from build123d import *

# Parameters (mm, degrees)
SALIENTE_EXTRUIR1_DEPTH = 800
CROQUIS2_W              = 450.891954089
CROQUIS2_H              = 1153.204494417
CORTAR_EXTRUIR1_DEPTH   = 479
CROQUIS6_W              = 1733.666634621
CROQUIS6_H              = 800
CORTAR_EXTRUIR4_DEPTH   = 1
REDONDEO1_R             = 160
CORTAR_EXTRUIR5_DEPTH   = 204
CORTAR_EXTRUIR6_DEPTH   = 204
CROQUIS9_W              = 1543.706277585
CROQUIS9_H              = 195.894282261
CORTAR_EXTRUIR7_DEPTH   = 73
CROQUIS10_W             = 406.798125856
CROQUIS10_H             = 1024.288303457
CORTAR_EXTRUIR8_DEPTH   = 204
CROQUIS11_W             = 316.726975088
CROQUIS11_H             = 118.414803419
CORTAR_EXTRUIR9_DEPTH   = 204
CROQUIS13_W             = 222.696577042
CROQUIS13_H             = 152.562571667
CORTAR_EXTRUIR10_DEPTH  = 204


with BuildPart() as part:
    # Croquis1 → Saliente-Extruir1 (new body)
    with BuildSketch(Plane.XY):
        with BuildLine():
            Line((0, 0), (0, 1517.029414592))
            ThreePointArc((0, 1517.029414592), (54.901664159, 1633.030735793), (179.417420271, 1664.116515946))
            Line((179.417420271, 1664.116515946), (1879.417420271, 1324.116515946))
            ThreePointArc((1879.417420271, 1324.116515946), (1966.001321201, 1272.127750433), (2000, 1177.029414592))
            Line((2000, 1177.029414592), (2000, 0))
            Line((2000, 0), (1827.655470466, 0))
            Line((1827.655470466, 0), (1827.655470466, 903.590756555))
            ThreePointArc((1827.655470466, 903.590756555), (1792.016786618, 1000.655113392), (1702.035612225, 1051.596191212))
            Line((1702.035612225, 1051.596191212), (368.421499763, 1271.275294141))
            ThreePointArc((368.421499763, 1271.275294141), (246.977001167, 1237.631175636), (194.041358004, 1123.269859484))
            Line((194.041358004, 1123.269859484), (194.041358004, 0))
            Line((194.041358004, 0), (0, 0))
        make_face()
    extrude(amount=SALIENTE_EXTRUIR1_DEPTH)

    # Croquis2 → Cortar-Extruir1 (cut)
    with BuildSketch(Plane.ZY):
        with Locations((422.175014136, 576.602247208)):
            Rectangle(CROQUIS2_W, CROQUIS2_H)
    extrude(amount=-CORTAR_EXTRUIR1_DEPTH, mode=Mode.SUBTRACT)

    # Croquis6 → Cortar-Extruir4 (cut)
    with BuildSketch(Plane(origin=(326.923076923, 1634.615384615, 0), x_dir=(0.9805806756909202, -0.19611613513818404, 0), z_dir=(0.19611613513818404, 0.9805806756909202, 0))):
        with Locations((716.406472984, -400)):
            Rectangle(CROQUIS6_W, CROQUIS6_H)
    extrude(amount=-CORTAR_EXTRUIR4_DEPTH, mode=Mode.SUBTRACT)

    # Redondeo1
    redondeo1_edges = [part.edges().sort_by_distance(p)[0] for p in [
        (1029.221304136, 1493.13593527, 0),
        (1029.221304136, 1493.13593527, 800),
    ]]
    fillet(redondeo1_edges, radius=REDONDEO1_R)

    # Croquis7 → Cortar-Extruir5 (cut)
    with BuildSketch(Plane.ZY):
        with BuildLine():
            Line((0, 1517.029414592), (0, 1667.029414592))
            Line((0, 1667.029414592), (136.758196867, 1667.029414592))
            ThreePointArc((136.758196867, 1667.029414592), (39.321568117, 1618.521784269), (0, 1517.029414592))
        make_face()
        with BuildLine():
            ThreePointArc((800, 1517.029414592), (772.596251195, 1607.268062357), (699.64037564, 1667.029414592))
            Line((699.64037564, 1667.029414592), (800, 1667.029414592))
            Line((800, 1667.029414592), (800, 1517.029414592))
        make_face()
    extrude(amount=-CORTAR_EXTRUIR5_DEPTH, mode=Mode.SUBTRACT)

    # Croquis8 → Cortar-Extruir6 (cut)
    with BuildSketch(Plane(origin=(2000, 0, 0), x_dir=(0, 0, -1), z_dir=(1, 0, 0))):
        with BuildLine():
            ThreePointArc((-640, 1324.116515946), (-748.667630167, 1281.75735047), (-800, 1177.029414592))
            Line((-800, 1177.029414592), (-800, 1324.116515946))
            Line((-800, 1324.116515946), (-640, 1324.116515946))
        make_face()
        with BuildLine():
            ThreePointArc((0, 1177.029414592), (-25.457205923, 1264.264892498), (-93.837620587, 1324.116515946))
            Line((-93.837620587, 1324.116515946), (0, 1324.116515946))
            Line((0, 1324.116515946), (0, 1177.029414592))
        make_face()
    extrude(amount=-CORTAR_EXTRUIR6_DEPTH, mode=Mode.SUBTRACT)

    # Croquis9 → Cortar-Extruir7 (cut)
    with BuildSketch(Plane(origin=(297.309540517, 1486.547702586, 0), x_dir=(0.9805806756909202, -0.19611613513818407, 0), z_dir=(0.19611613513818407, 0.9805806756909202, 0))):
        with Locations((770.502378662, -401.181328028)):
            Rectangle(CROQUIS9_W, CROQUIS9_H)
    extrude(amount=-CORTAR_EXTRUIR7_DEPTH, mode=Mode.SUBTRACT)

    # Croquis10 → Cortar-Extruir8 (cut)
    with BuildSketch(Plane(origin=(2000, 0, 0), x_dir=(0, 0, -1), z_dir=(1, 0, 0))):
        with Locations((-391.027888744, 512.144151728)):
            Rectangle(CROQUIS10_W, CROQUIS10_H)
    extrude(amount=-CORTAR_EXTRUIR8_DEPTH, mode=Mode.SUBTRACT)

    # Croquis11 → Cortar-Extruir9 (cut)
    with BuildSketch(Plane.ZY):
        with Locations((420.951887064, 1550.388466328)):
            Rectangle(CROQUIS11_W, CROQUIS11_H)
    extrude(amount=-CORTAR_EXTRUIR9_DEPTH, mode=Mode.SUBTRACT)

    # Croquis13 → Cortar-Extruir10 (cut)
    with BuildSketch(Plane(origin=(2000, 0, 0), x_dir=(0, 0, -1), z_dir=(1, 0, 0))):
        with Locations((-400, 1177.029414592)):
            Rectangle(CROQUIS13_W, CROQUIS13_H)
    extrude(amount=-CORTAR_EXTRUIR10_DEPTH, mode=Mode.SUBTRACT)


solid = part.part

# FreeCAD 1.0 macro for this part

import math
import FreeCAD as App
import Part
import Sketcher

V = App.Vector


def edges_at(feature, points):
    """Names of the edges that pass closest to the given points."""
    edges = feature.Shape.Edges
    near = lambda p: min(range(len(edges)), key=lambda i: edges[i].distToShape(Part.Vertex(*p))[0])
    return sorted({f"Edge{near(p) + 1}" for p in points})


def add_polygon(sketch, points):
    """Adds a closed chain of lines whose ends are joined by coincident constraints."""
    first, n = sketch.GeometryCount, len(points)
    for a, b in zip(points, points[1:] + points[:1]):
        sketch.addGeometry(Part.LineSegment(App.Vector(*a, 0), App.Vector(*b, 0)), False)
    for i in range(n):
        sketch.addConstraint(Sketcher.Constraint("Coincident", first + i, 2, first + (i + 1) % n, 1))

doc = App.newDocument("Part")
params = doc.addObject("Spreadsheet::Sheet", "Params")
for row, (alias, value) in enumerate([
    ("sketch1_radius", "150 mm"),
    ("pad1_length", "800 mm"),
    ("pocket1_length", "479 mm"),
    ("sketch3_height", "800.000001 mm"),
    ("pocket2_length", "1 mm"),
    ("fillet_radius", "160 mm"),
    ("sketch4_width", "150 mm"),
    ("pocket3_length", "204 mm"),
    ("sketch5_height", "160 mm"),
    ("pocket4_length", "204 mm"),
    ("pocket5_length", "73 mm"),
    ("pocket6_length", "204 mm"),
    ("pocket7_length", "204 mm"),
    ("pocket8_length", "204 mm"),
], start=1):
    params.set(f"A{row}", alias)
    params.set(f"B{row}", "=" + value)
    params.setAlias(f"B{row}", alias)

body = doc.addObject("PartDesign::Body", "Body")

# Sketch on XY plane
sketch1 = doc.addObject("Sketcher::SketchObject", "Sketch")
body.addObject(sketch1)
sketch1.AttachmentSupport = (doc.XY_Plane, [""])
sketch1.MapMode = "FlatFace"
sketch1.addGeometry(Part.LineSegment(V(0, 1517.029415, 0), V(0, 0, 0)), False)
sketch1.addGeometry(Part.LineSegment(V(0, 0, 0), V(194.041358, 0, 0)), False)
sketch1.addGeometry(Part.LineSegment(V(194.041358, 0, 0), V(194.041358, 1123.269859, 0)), False)
sketch1.addGeometry(Part.ArcOfCircle(Part.Circle(V(344.041358, 1123.269859, 0), V(0, 0, 1), 150), math.radians(80.645974), math.radians(180)), False)
sketch1.addGeometry(Part.LineSegment(V(368.4215, 1271.275294, 0), V(1702.035612, 1051.596191, 0)), False)
sketch1.addGeometry(Part.ArcOfCircle(Part.Circle(V(1677.65547, 903.590757, 0), V(0, 0, 1), 150), math.radians(0), math.radians(80.645974)), False)
sketch1.addGeometry(Part.LineSegment(V(1827.65547, 903.590757, 0), V(1827.65547, 0, 0)), False)
sketch1.addGeometry(Part.LineSegment(V(1827.65547, 0, 0), V(2000, 0, 0)), False)
sketch1.addGeometry(Part.LineSegment(V(2000, 0, 0), V(2000, 1177.029415, 0)), False)
sketch1.addGeometry(Part.ArcOfCircle(Part.Circle(V(1850, 1177.029415, 0), V(0, 0, 1), 150), math.radians(0), math.radians(78.690068)), False)
sketch1.addGeometry(Part.LineSegment(V(1879.41742, 1324.116516, 0), V(179.41742, 1664.116516, 0)), False)
sketch1.addGeometry(Part.ArcOfCircle(Part.Circle(V(150, 1517.029415, 0), V(0, 0, 1), 150), math.radians(78.690068), math.radians(180)), False)
sketch1.addConstraint(Sketcher.Constraint("Coincident", 0, 2, 1, 1))
sketch1.addConstraint(Sketcher.Constraint("Coincident", 1, 2, 2, 1))
sketch1.addConstraint(Sketcher.Constraint("Tangent", 2, 2, 3, 2))
sketch1.addConstraint(Sketcher.Constraint("Tangent", 3, 1, 4, 1))
sketch1.addConstraint(Sketcher.Constraint("Tangent", 4, 2, 5, 2))
sketch1.addConstraint(Sketcher.Constraint("Tangent", 5, 1, 6, 1))
sketch1.addConstraint(Sketcher.Constraint("Coincident", 6, 2, 7, 1))
sketch1.addConstraint(Sketcher.Constraint("Coincident", 7, 2, 8, 1))
sketch1.addConstraint(Sketcher.Constraint("Tangent", 8, 2, 9, 1))
sketch1.addConstraint(Sketcher.Constraint("Tangent", 9, 2, 10, 1))
sketch1.addConstraint(Sketcher.Constraint("Tangent", 10, 2, 11, 1))
sketch1.addConstraint(Sketcher.Constraint("Tangent", 11, 2, 0, 1))
sketch1.addConstraint(Sketcher.Constraint("Vertical", 0))
sketch1.addConstraint(Sketcher.Constraint("Horizontal", 1))
sketch1.addConstraint(Sketcher.Constraint("Vertical", 2))
sketch1.addConstraint(Sketcher.Constraint("Vertical", 6))
sketch1.addConstraint(Sketcher.Constraint("Horizontal", 7))
sketch1.addConstraint(Sketcher.Constraint("Vertical", 8))
sketch1.addConstraint(Sketcher.Constraint("Coincident", 0, 2, -1, 1))
sketch1.addConstraint(Sketcher.Constraint("Equal", 3, 5))
sketch1.addConstraint(Sketcher.Constraint("Equal", 5, 9))
sketch1.addConstraint(Sketcher.Constraint("Equal", 9, 11))
sketch1.addConstraint(Sketcher.Constraint("PointOnObject", 6, 2, -1))
sketch1.addConstraint(Sketcher.Constraint("Radius", 3, 150.0))
sketch1.addConstraint(Sketcher.Constraint("DistanceX", -1, 1, 9, 3, 1850.0))
sketch1.addConstraint(Sketcher.Constraint("DistanceY", 9, 3, 11, 3, 340.0))
sketch1.addConstraint(Sketcher.Constraint("DistanceX", 1, 1, 1, 2, 194.041358))
sketch1.addConstraint(Sketcher.Constraint("DistanceX", 7, 1, 7, 2, 172.34453))
sketch1.addConstraint(Sketcher.Constraint("DistanceY", 2, 1, 2, 2, 1123.269859))
sketch1.addConstraint(Sketcher.Constraint("DistanceY", 0, 2, 0, 1, 1517.029415))
sketch1.addConstraint(Sketcher.Constraint("DistanceY", 6, 2, 6, 1, 903.590757))
sketch1.setExpression("Constraints[23]", "Params.sketch1_radius")
pad1 = doc.addObject("PartDesign::Pad", "Pad")
body.addObject(pad1)
pad1.Profile = sketch1
pad1.setExpression("Length", "Params.pad1_length")

# Sketch on YZ plane
sketch2 = doc.addObject("Sketcher::SketchObject", "Sketch001")
body.addObject(sketch2)
sketch2.AttachmentSupport = (doc.YZ_Plane, [""])
sketch2.MapMode = "FlatFace"
add_polygon(sketch2, [(1153.204494, 196.729037), (0, 196.729037), (0, 647.620991), (1153.204494, 647.620991)])  # lines 0-3
sketch2.addConstraint(Sketcher.Constraint("Horizontal", 0))
sketch2.addConstraint(Sketcher.Constraint("Vertical", 1))
sketch2.addConstraint(Sketcher.Constraint("Horizontal", 2))
sketch2.addConstraint(Sketcher.Constraint("Vertical", 3))
sketch2.addConstraint(Sketcher.Constraint("PointOnObject", 0, 2, -2))
sketch2.addConstraint(Sketcher.Constraint("DistanceX", 0, 2, 0, 1, 1153.204494))
sketch2.addConstraint(Sketcher.Constraint("DistanceY", 1, 1, 1, 2, 450.891954))
sketch2.addConstraint(Sketcher.Constraint("DistanceY", -1, 1, 1, 2, 647.620991))
pocket1 = doc.addObject("PartDesign::Pocket", "Pocket")
body.addObject(pocket1)
pocket1.Profile = sketch2
pocket1.setExpression("Length", "Params.pocket1_length")
pocket1.Reversed = True

# Sketch on an angled plane
sketch3 = doc.addObject("Sketcher::SketchObject", "Sketch002")
body.addObject(sketch3)
sketch3.Placement = App.Placement(V(326.923077, 1634.615385, 0), App.Rotation(V(0.980580676, -0.196116135, 0), V(0, 0, -1.000000001), V(0.196116135, 0.980580676, 0), "ZXY"))
add_polygon(sketch3, [(-150.426844, 0), (-150.426844, -800.000001), (1583.239791, -800.000001), (1583.239791, 0)])  # lines 0-3
sketch3.addConstraint(Sketcher.Constraint("Vertical", 0))
sketch3.addConstraint(Sketcher.Constraint("Horizontal", 1))
sketch3.addConstraint(Sketcher.Constraint("Vertical", 2))
sketch3.addConstraint(Sketcher.Constraint("Horizontal", 3))
sketch3.addConstraint(Sketcher.Constraint("PointOnObject", 2, 2, -1))
sketch3.addConstraint(Sketcher.Constraint("DistanceY", 0, 2, 0, 1, 800.000001))
sketch3.addConstraint(Sketcher.Constraint("DistanceX", 1, 1, 1, 2, 1733.666636))
sketch3.addConstraint(Sketcher.Constraint("DistanceX", -1, 1, 1, 2, 1583.239791))
sketch3.setExpression("Constraints[9]", "Params.sketch3_height")
pocket2 = doc.addObject("PartDesign::Pocket", "Pocket001")
body.addObject(pocket2)
pocket2.Profile = sketch3
pocket2.setExpression("Length", "Params.pocket2_length")
doc.recompute()

fillet = doc.addObject("PartDesign::Fillet", "Fillet")
body.addObject(fillet)
fillet.Base = (pocket2, edges_at(pocket2, [(1029.221, 1493.136, 0), (1029.221, 1493.136, 800)]))
fillet.setExpression("Radius", "Params.fillet_radius")

# Sketch on YZ plane
sketch4 = doc.addObject("Sketcher::SketchObject", "Sketch003")
body.addObject(sketch4)
sketch4.AttachmentSupport = (doc.YZ_Plane, [""])
sketch4.MapMode = "FlatFace"
sketch4.addGeometry(Part.LineSegment(V(1667.029415, 0, 0), V(1517.029415, 0, 0)), False)
sketch4.addGeometry(Part.ArcOfCircle(Part.Circle(V(1517.029415, 150.641078, 0), V(0, 0, 1), 150.641078), math.radians(-90), math.radians(-5.287806)), False)
sketch4.addGeometry(Part.LineSegment(V(1667.029415, 136.758197, 0), V(1667.029415, 0, 0)), False)
sketch4.addGeometry(Part.ArcOfCircle(Part.Circle(V(1517.029415, 637.723315, 0), V(0, 0, 1), 162.276685), math.radians(22.429876), math.radians(90)), False)
sketch4.addGeometry(Part.LineSegment(V(1517.029415, 800, 0), V(1667.029415, 800, 0)), False)
sketch4.addGeometry(Part.LineSegment(V(1667.029415, 800, 0), V(1667.029415, 699.640376, 0)), False)
sketch4.addConstraint(Sketcher.Constraint("Tangent", 0, 2, 1, 1))
sketch4.addConstraint(Sketcher.Constraint("Coincident", 1, 2, 2, 1))
sketch4.addConstraint(Sketcher.Constraint("Coincident", 2, 2, 0, 1))
sketch4.addConstraint(Sketcher.Constraint("Tangent", 3, 2, 4, 1))
sketch4.addConstraint(Sketcher.Constraint("Coincident", 4, 2, 5, 1))
sketch4.addConstraint(Sketcher.Constraint("Coincident", 5, 2, 3, 1))
sketch4.addConstraint(Sketcher.Constraint("Horizontal", 0))
sketch4.addConstraint(Sketcher.Constraint("Vertical", 2))
sketch4.addConstraint(Sketcher.Constraint("Horizontal", 4))
sketch4.addConstraint(Sketcher.Constraint("Vertical", 5))
sketch4.addConstraint(Sketcher.Constraint("PointOnObject", 0, 2, -1))
sketch4.addConstraint(Sketcher.Constraint("Vertical", 1, 3, 3, 3))
sketch4.addConstraint(Sketcher.Constraint("Vertical", 2, 2, 4, 2))
sketch4.addConstraint(Sketcher.Constraint("DistanceX", 0, 2, 0, 1, 150.0))
sketch4.addConstraint(Sketcher.Constraint("DistanceY", -1, 1, 3, 2, 800.0))
sketch4.addConstraint(Sketcher.Constraint("Radius", 1, 150.641078))
sketch4.addConstraint(Sketcher.Constraint("Radius", 3, 162.276685))
sketch4.addConstraint(Sketcher.Constraint("DistanceX", -1, 1, 1, 3, 1517.029415))
sketch4.setExpression("Constraints[13]", "Params.sketch4_width")
pocket3 = doc.addObject("PartDesign::Pocket", "Pocket002")
body.addObject(pocket3)
pocket3.Profile = sketch4
pocket3.setExpression("Length", "Params.pocket3_length")
pocket3.Reversed = True

# Sketch on YZ plane
sketch5 = doc.addObject("Sketcher::SketchObject", "Sketch004")
body.addObject(sketch5)
sketch5.AttachmentSupport = (doc.YZ_Plane, [""])
sketch5.MapMode = "FlatFace"
sketch5.AttachmentOffset = App.Placement(V(0, 0, 2000), App.Rotation())
sketch5.addGeometry(Part.ArcOfCircle(Part.Circle(V(1163.549699, 640, 0), V(0, 0, 1), 160.566817), math.radians(0), math.radians(85.184304)), False)
sketch5.addGeometry(Part.LineSegment(V(1324.116516, 640, 0), V(1324.116516, 800, 0)), False)
sketch5.addGeometry(Part.LineSegment(V(1324.116516, 800, 0), V(1177.029415, 800, 0)), False)
sketch5.addGeometry(Part.ArcOfCircle(Part.Circle(V(1177.029415, 162.195686, 0), V(0, 0, 1), 162.195686), math.radians(-90), math.radians(-24.926436)), False)
sketch5.addGeometry(Part.LineSegment(V(1177.029415, 0, 0), V(1324.116516, 0, 0)), False)
sketch5.addGeometry(Part.LineSegment(V(1324.116516, 0, 0), V(1324.116516, 93.837621, 0)), False)
sketch5.addConstraint(Sketcher.Constraint("Tangent", 0, 1, 1, 1))
sketch5.addConstraint(Sketcher.Constraint("Coincident", 1, 2, 2, 1))
sketch5.addConstraint(Sketcher.Constraint("Coincident", 2, 2, 0, 2))
sketch5.addConstraint(Sketcher.Constraint("Tangent", 3, 1, 4, 1))
sketch5.addConstraint(Sketcher.Constraint("Coincident", 4, 2, 5, 1))
sketch5.addConstraint(Sketcher.Constraint("Coincident", 5, 2, 3, 2))
sketch5.addConstraint(Sketcher.Constraint("Vertical", 1))
sketch5.addConstraint(Sketcher.Constraint("Horizontal", 2))
sketch5.addConstraint(Sketcher.Constraint("Horizontal", 4))
sketch5.addConstraint(Sketcher.Constraint("Vertical", 5))
sketch5.addConstraint(Sketcher.Constraint("PointOnObject", 3, 1, -1))
sketch5.addConstraint(Sketcher.Constraint("Vertical", 3, 3, 2, 2))
sketch5.addConstraint(Sketcher.Constraint("Vertical", 1, 2, 4, 2))
sketch5.addConstraint(Sketcher.Constraint("DistanceY", 1, 1, 1, 2, 160.0))
sketch5.addConstraint(Sketcher.Constraint("DistanceY", -1, 1, 0, 3, 640.0))
sketch5.addConstraint(Sketcher.Constraint("DistanceX", 2, 2, 2, 1, 147.087101))
sketch5.addConstraint(Sketcher.Constraint("Radius", 3, 162.195686))
sketch5.addConstraint(Sketcher.Constraint("DistanceX", -1, 1, 0, 3, 1163.549699))
sketch5.setExpression("Constraints[13]", "Params.sketch5_height")
pocket4 = doc.addObject("PartDesign::Pocket", "Pocket003")
body.addObject(pocket4)
pocket4.Profile = sketch5
pocket4.setExpression("Length", "Params.pocket4_length")

# Sketch on an angled plane
sketch6 = doc.addObject("Sketcher::SketchObject", "Sketch005")
body.addObject(sketch6)
sketch6.Placement = App.Placement(V(297.309541, 1486.547703, 0), App.Rotation(V(0.980580676, -0.196116135, 0), V(0, 0, -1.000000001), V(0.196116135, 0.980580676, 0), "ZXY"))
add_polygon(sketch6, [(-1.35076, -303.234187), (-1.35076, -499.12847), (1542.355518, -499.12847), (1542.355518, -303.234187)])  # lines 0-3
sketch6.addConstraint(Sketcher.Constraint("Vertical", 0))
sketch6.addConstraint(Sketcher.Constraint("Horizontal", 1))
sketch6.addConstraint(Sketcher.Constraint("Vertical", 2))
sketch6.addConstraint(Sketcher.Constraint("Horizontal", 3))
sketch6.addConstraint(Sketcher.Constraint("DistanceX", 1, 1, 1, 2, 1543.706278))
sketch6.addConstraint(Sketcher.Constraint("DistanceY", 0, 2, 0, 1, 195.894282))
sketch6.addConstraint(Sketcher.Constraint("DistanceX", 0, 2, -1, 1, 1.35076))
sketch6.addConstraint(Sketcher.Constraint("DistanceY", 0, 2, -1, 1, 499.12847))
pocket5 = doc.addObject("PartDesign::Pocket", "Pocket004")
body.addObject(pocket5)
pocket5.Profile = sketch6
pocket5.setExpression("Length", "Params.pocket5_length")

# Sketch on YZ plane
sketch7 = doc.addObject("Sketcher::SketchObject", "Sketch006")
body.addObject(sketch7)
sketch7.AttachmentSupport = (doc.YZ_Plane, [""])
sketch7.MapMode = "FlatFace"
sketch7.AttachmentOffset = App.Placement(V(0, 0, 2000), App.Rotation())
add_polygon(sketch7, [(1024.288303, 594.426952), (0, 594.426952), (0, 187.628826), (1024.288303, 187.628826)])  # lines 0-3
sketch7.addConstraint(Sketcher.Constraint("Horizontal", 0))
sketch7.addConstraint(Sketcher.Constraint("Vertical", 1))
sketch7.addConstraint(Sketcher.Constraint("Horizontal", 2))
sketch7.addConstraint(Sketcher.Constraint("Vertical", 3))
sketch7.addConstraint(Sketcher.Constraint("PointOnObject", 0, 2, -2))
sketch7.addConstraint(Sketcher.Constraint("DistanceX", 0, 2, 0, 1, 1024.288303))
sketch7.addConstraint(Sketcher.Constraint("DistanceY", 1, 2, 1, 1, 406.798126))
sketch7.addConstraint(Sketcher.Constraint("DistanceY", -1, 1, 0, 2, 594.426952))
pocket6 = doc.addObject("PartDesign::Pocket", "Pocket005")
body.addObject(pocket6)
pocket6.Profile = sketch7
pocket6.setExpression("Length", "Params.pocket6_length")

# Sketch on YZ plane
sketch8 = doc.addObject("Sketcher::SketchObject", "Sketch007")
body.addObject(sketch8)
sketch8.AttachmentSupport = (doc.YZ_Plane, [""])
sketch8.MapMode = "FlatFace"
add_polygon(sketch8, [(1609.595868, 262.5884), (1491.181065, 262.5884), (1491.181065, 579.315375), (1609.595868, 579.315375)])  # lines 0-3
sketch8.addConstraint(Sketcher.Constraint("Horizontal", 0))
sketch8.addConstraint(Sketcher.Constraint("Vertical", 1))
sketch8.addConstraint(Sketcher.Constraint("Horizontal", 2))
sketch8.addConstraint(Sketcher.Constraint("Vertical", 3))
sketch8.addConstraint(Sketcher.Constraint("DistanceY", -1, 1, 0, 2, 262.5884))
sketch8.addConstraint(Sketcher.Constraint("DistanceX", 0, 2, 0, 1, 118.414803))
sketch8.addConstraint(Sketcher.Constraint("DistanceY", 1, 1, 1, 2, 316.726975))
sketch8.addConstraint(Sketcher.Constraint("DistanceX", -1, 1, 2, 2, 1609.595868))
pocket7 = doc.addObject("PartDesign::Pocket", "Pocket006")
body.addObject(pocket7)
pocket7.Profile = sketch8
pocket7.setExpression("Length", "Params.pocket7_length")
pocket7.Reversed = True

# Sketch on YZ plane
sketch9 = doc.addObject("Sketcher::SketchObject", "Sketch008")
body.addObject(sketch9)
sketch9.AttachmentSupport = (doc.YZ_Plane, [""])
sketch9.MapMode = "FlatFace"
sketch9.AttachmentOffset = App.Placement(V(0, 0, 2000), App.Rotation())
add_polygon(sketch9, [(1253.3107, 511.348289), (1100.748129, 511.348289), (1100.748129, 288.651711), (1253.3107, 288.651711)])  # lines 0-3
sketch9.addConstraint(Sketcher.Constraint("Horizontal", 0))
sketch9.addConstraint(Sketcher.Constraint("Vertical", 1))
sketch9.addConstraint(Sketcher.Constraint("Horizontal", 2))
sketch9.addConstraint(Sketcher.Constraint("Vertical", 3))
sketch9.addConstraint(Sketcher.Constraint("DistanceX", 0, 2, 0, 1, 152.562572))
sketch9.addConstraint(Sketcher.Constraint("DistanceX", -1, 1, 2, 2, 1253.3107))
sketch9.addConstraint(Sketcher.Constraint("DistanceY", 1, 2, 1, 1, 222.696577))
sketch9.addConstraint(Sketcher.Constraint("DistanceY", -1, 1, 0, 2, 511.348289))
pocket8 = doc.addObject("PartDesign::Pocket", "Pocket007")
body.addObject(pocket8)
pocket8.Profile = sketch9
pocket8.setExpression("Length", "Params.pocket8_length")

doc.recompute()
